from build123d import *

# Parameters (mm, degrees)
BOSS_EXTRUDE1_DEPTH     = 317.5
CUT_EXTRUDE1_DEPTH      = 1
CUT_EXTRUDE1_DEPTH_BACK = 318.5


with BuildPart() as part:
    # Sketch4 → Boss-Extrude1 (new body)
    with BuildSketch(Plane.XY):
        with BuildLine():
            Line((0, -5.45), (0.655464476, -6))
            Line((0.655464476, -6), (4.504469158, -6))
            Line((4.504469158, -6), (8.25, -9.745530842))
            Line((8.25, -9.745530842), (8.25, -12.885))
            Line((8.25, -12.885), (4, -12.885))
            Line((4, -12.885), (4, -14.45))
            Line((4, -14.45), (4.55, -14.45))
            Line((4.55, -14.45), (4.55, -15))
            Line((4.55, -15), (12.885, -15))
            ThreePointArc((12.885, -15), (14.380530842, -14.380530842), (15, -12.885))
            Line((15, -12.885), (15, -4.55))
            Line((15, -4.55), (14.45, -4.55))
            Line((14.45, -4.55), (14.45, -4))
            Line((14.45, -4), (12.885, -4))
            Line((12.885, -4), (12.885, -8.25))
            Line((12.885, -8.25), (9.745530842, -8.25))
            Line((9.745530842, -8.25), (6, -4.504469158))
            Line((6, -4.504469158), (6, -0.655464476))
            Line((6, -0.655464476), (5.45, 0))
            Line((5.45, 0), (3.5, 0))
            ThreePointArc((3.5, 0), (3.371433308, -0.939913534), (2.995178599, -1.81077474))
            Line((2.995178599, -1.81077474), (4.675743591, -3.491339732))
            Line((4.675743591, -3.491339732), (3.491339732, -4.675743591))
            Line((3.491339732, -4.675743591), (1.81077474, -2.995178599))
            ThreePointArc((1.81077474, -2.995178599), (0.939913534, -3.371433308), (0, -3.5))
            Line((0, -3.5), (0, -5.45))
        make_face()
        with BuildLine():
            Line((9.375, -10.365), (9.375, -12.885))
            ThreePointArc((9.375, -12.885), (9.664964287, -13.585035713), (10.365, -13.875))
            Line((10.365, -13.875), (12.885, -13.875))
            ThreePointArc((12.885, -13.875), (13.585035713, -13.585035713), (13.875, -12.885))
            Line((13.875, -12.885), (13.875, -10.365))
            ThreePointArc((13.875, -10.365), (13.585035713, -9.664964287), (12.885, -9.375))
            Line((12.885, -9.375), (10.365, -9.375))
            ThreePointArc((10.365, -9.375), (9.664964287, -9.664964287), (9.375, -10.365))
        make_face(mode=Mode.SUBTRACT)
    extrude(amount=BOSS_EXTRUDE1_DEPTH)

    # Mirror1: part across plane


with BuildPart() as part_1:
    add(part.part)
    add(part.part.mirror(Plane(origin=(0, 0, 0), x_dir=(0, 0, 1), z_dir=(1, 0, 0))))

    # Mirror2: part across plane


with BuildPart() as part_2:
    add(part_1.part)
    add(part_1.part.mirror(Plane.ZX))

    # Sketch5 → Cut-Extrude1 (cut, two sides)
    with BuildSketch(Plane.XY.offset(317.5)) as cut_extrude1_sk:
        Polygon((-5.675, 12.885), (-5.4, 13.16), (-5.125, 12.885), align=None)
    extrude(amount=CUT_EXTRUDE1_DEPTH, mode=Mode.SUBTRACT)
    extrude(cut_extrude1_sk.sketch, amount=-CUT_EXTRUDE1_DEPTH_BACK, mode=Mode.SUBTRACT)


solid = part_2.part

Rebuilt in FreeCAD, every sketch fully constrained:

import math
import FreeCAD as App
import Part
import Sketcher

V = App.Vector
Q = App.Units.Quantity


def add_polygon(sketch, points):
    """Adds a closed chain of lines whose ends are joined by coincident constraints."""
    first, n = sketch.GeometryCount, len(points)
    for a, b in zip(points, points[1:] + points[:1]):
        sketch.addGeometry(Part.LineSegment(App.Vector(*a, 0), App.Vector(*b, 0)), False)
    for i in range(n):
        sketch.addConstraint(Sketcher.Constraint("Coincident", first + i, 2, first + (i + 1) % n, 1))

doc = App.newDocument("Part")
body = doc.addObject("PartDesign::Body", "Body")

sketch1 = body.newObject("Sketcher::SketchObject", "Sketch")
sketch1.AttachmentSupport = (doc.getObject("XY_Plane"), [""])
sketch1.MapMode = "FlatFace"
sketch1.addGeometry([
    Part.LineSegment(V(0, -5.45, 0), V(0.655464, -6, 0)),
    Part.LineSegment(V(0.655464, -6, 0), V(4.504469, -6, 0)),
    Part.LineSegment(V(4.504469, -6, 0), V(8.25, -9.745531, 0)),
    Part.LineSegment(V(8.25, -9.745531, 0), V(8.25, -12.885, 0)),
    Part.LineSegment(V(8.25, -12.885, 0), V(4, -12.885, 0)),
    Part.LineSegment(V(4, -12.885, 0), V(4, -14.45, 0)),
    Part.LineSegment(V(4, -14.45, 0), V(4.55, -14.45, 0)),
    Part.LineSegment(V(4.55, -14.45, 0), V(4.55, -15, 0)),
    Part.LineSegment(V(4.55, -15, 0), V(12.885, -15, 0)),
    Part.ArcOfCircle(Part.Circle(V(12.885, -12.885, 0), V(0, 0, 1), 2.115), math.radians(-90), math.radians(0)),
    Part.LineSegment(V(15, -12.885, 0), V(15, -4.55, 0)),
    Part.LineSegment(V(15, -4.55, 0), V(14.45, -4.55, 0)),
    Part.LineSegment(V(14.45, -4.55, 0), V(14.45, -4, 0)),
    Part.LineSegment(V(14.45, -4, 0), V(12.885, -4, 0)),
    Part.LineSegment(V(12.885, -4, 0), V(12.885, -8.25, 0)),
    Part.LineSegment(V(12.885, -8.25, 0), V(9.745531, -8.25, 0)),
    Part.LineSegment(V(9.745531, -8.25, 0), V(6, -4.504469, 0)),
    Part.LineSegment(V(6, -4.504469, 0), V(6, -0.655464, 0)),
    Part.LineSegment(V(6, -0.655464, 0), V(5.45, 0, 0)),
    Part.LineSegment(V(5.45, 0, 0), V(3.5, 0, 0)),
    Part.ArcOfCircle(Part.Circle(V(0, 0, 0), V(0, 0, 1), 3.5), math.radians(-31.155614), math.radians(0)),
    Part.LineSegment(V(2.995179, -1.810775, 0), V(4.675744, -3.49134, 0)),
    Part.LineSegment(V(4.675744, -3.49134, 0), V(3.49134, -4.675744, 0)),
    Part.LineSegment(V(3.49134, -4.675744, 0), V(1.810775, -2.995179, 0)),
    Part.ArcOfCircle(Part.Circle(V(0, 0, 0), V(0, 0, 1), 3.5), math.radians(-90), math.radians(-58.844386)),
    Part.LineSegment(V(0, -3.5, 0), V(0, -5.45, 0)),
    Part.LineSegment(V(9.375, -12.885, 0), V(9.375, -10.365, 0)),
    Part.ArcOfCircle(Part.Circle(V(10.365, -10.365, 0), V(0, 0, 1), 0.99), math.radians(90), math.radians(180)),
    Part.LineSegment(V(10.365, -9.375, 0), V(12.885, -9.375, 0)),
    Part.ArcOfCircle(Part.Circle(V(12.885, -10.365, 0), V(0, 0, 1), 0.99), math.radians(0), math.radians(90)),
    Part.LineSegment(V(13.875, -10.365, 0), V(13.875, -12.885, 0)),
    Part.ArcOfCircle(Part.Circle(V(12.885, -12.885, 0), V(0, 0, 1), 0.99), math.radians(-90), math.radians(0)),
    Part.LineSegment(V(12.885, -13.875, 0), V(10.365, -13.875, 0)),
    Part.ArcOfCircle(Part.Circle(V(10.365, -12.885, 0), V(0, 0, 1), 0.99), math.radians(-180), math.radians(-90)),
], False)
sketch1.addConstraint([
    Sketcher.Constraint("Coincident", 0, 2, 1, 1),
    Sketcher.Constraint("Coincident", 1, 2, 2, 1),
    Sketcher.Constraint("Coincident", 2, 2, 3, 1),
    Sketcher.Constraint("Coincident", 3, 2, 4, 1),
    Sketcher.Constraint("Coincident", 4, 2, 5, 1),
    Sketcher.Constraint("Coincident", 5, 2, 6, 1),
    Sketcher.Constraint("Coincident", 6, 2, 7, 1),
    Sketcher.Constraint("Coincident", 7, 2, 8, 1),
    Sketcher.Constraint("Tangent", 8, 2, 9, 1),
    Sketcher.Constraint("Tangent", 9, 2, 10, 1),
    Sketcher.Constraint("Coincident", 10, 2, 11, 1),
    Sketcher.Constraint("Coincident", 11, 2, 12, 1),
    Sketcher.Constraint("Coincident", 12, 2, 13, 1),
    Sketcher.Constraint("Coincident", 13, 2, 14, 1),
    Sketcher.Constraint("Coincident", 14, 2, 15, 1),
    Sketcher.Constraint("Coincident", 15, 2, 16, 1),
    Sketcher.Constraint("Coincident", 16, 2, 17, 1),
    Sketcher.Constraint("Coincident", 17, 2, 18, 1),
    Sketcher.Constraint("Coincident", 18, 2, 19, 1),
    Sketcher.Constraint("Coincident", 19, 2, 20, 2),
    Sketcher.Constraint("Coincident", 20, 1, 21, 1),
    Sketcher.Constraint("Coincident", 21, 2, 22, 1),
    Sketcher.Constraint("Coincident", 22, 2, 23, 1),
    Sketcher.Constraint("Coincident", 23, 2, 24, 2),
    Sketcher.Constraint("Coincident", 24, 1, 25, 1),
    Sketcher.Constraint("Coincident", 25, 2, 0, 1),
    Sketcher.Constraint("Tangent", 26, 2, 27, 2),
    Sketcher.Constraint("Tangent", 27, 1, 28, 1),
    Sketcher.Constraint("Tangent", 28, 2, 29, 2),
    Sketcher.Constraint("Tangent", 29, 1, 30, 1),
    Sketcher.Constraint("Tangent", 30, 2, 31, 2),
    Sketcher.Constraint("Tangent", 31, 1, 32, 1),
    Sketcher.Constraint("Tangent", 32, 2, 33, 2),
    Sketcher.Constraint("Tangent", 33, 1, 26, 1),
    Sketcher.Constraint("Horizontal", 1),
    Sketcher.Constraint("Vertical", 3),
    Sketcher.Constraint("Horizontal", 4),
    Sketcher.Constraint("Vertical", 5),
    Sketcher.Constraint("Horizontal", 6),
    Sketcher.Constraint("Vertical", 7),
    Sketcher.Constraint("Horizontal", 8),
    Sketcher.Constraint("Vertical", 10),
    Sketcher.Constraint("Horizontal", 11),
    Sketcher.Constraint("Vertical", 12),
    Sketcher.Constraint("Horizontal", 13),
    Sketcher.Constraint("Vertical", 14),
    Sketcher.Constraint("Horizontal", 15),
    Sketcher.Constraint("Vertical", 17),
    Sketcher.Constraint("Horizontal", 19),
    Sketcher.Constraint("Vertical", 25),
    Sketcher.Constraint("Vertical", 26),
    Sketcher.Constraint("Horizontal", 28),
    Sketcher.Constraint("Vertical", 30),
    Sketcher.Constraint("Horizontal", 32),
    Sketcher.Constraint("Coincident", 20, 3, -1, 1),
    Sketcher.Constraint("Coincident", 24, 3, -1, 1),
    Sketcher.Constraint("Coincident", 31, 3, 9, 3),
    Sketcher.Constraint("Equal", 20, 24),
    Sketcher.Constraint("Equal", 27, 29),
    Sketcher.Constraint("Equal", 29, 31),
    Sketcher.Constraint("Equal", 31, 33),
    Sketcher.Constraint("PointOnObject", 18, 2, -1),
    Sketcher.Constraint("PointOnObject", 24, 1, -2),
    Sketcher.Constraint("Parallel", 2, 16),
    Sketcher.Constraint("Parallel", 16, 21),
    Sketcher.Constraint("Perpendicular", 21, 22),
    Sketcher.Constraint("Perpendicular", 22, 23),
    Sketcher.Constraint("Horizontal", 33, 3, 3, 2),
    Sketcher.Constraint("Vertical", 8, 2, 13, 2),
    Sketcher.Constraint("Equal", 6, 11),
    Sketcher.Constraint("Equal", 15, 3),
    Sketcher.Constraint("Equal", 13, 5),
    Sketcher.Constraint("Equal", 8, 10),
    Sketcher.Constraint("Equal", 7, 12),
    Sketcher.Constraint("Equal", 4, 14),
    Sketcher.Constraint("Equal", 1, 17),
    Sketcher.Constraint("Equal", 19, 25),
    Sketcher.Constraint("Equal", 32, 26),
    Sketcher.Constraint("Equal", 2, 16),
    Sketcher.Constraint("Equal", 0, 18),
    Sketcher.Constraint("Equal", 21, 23),
    Sketcher.Constraint("Radius", 20, Q("3.5 mm")),
    Sketcher.Constraint("Angle", 0, Q("-40 deg")),
    Sketcher.Constraint("Angle", 2, Q("-45 deg")),
    Sketcher.Constraint("Radius", 27, Q("0.99 mm")),
    Sketcher.Constraint("DistanceY", 0, 2, -1, 1, Q("6 mm")),
    Sketcher.Constraint("DistanceX", -1, 1, 4, 2, Q("4 mm")),
    Sketcher.Constraint("DistanceY", 7, 2, -1, 1, Q("15 mm")),
    Sketcher.Constraint("Radius", 9, Q("2.115 mm")),
    Sketcher.Constraint("DistanceX", 4, 2, 4, 1, Q("4.25 mm")),
    Sketcher.Constraint("DistanceX", 6, 1, 6, 2, Q("0.55 mm")),
    Sketcher.Constraint("DistanceX", 19, 2, 19, 1, Q("1.95 mm")),
    Sketcher.Constraint("DistanceX", 28, 1, 28, 2, Q("2.52 mm")),
    Sketcher.Constraint("Distance", 22, Q("1.675 mm")),
    Sketcher.Constraint("DistanceX", 15, 2, 15, 1, Q("3.139469 mm")),
    Sketcher.Constraint("DistanceY", 21, 2, -1, 1, Q("3.49134 mm")),
])
pad1 = body.newObject("PartDesign::Pad", "Pad")
pad1.Profile = sketch1
pad1.Length = 317.5
body2 = doc.addObject("PartDesign::Body", "Body001")
doc.recompute()

body2.BaseFeature = body
doc.recompute()

mirroring = doc.addObject("Part::Mirroring", "Mirroring")
mirroring.Source = body
mirroring.Base = V(0, 0, 0)
mirroring.Normal = V(1, 0, 0)
body3 = doc.addObject("PartDesign::Body", "Body002")
body3.BaseFeature = mirroring
boolean = body2.newObject("PartDesign::Boolean", "Boolean")
boolean.Type = "Fuse"
boolean.addObjects([body3])
doc.recompute()
body4 = doc.addObject("PartDesign::Body", "Body003")
doc.recompute()

body4.BaseFeature = body2
doc.recompute()

mirroring2 = doc.addObject("Part::Mirroring", "Mirroring001")
mirroring2.Source = body2
mirroring2.Base = V(0, 0, 0)
mirroring2.Normal = V(0, 1, 0)
body5 = doc.addObject("PartDesign::Body", "Body004")
body5.BaseFeature = mirroring2
boolean2 = body4.newObject("PartDesign::Boolean", "Boolean001")
boolean2.Type = "Fuse"
boolean2.addObjects([body5])
doc.recompute()

sketch2 = body4.newObject("Sketcher::SketchObject", "Sketch001")
sketch2.AttachmentSupport = (doc.getObject("XY_Plane003"), [""])
sketch2.MapMode = "FlatFace"
sketch2.AttachmentOffset = App.Placement(V(0, 0, 317.5), App.Rotation())
add_polygon(sketch2, [(-5.4, 13.16), (-5.675, 12.885), (-5.125, 12.885)])
sketch2.addConstraint([
    Sketcher.Constraint("Horizontal", 1),
    Sketcher.Constraint("Perpendicular", 0, 2),
    Sketcher.Constraint("Equal", 0, 2),
    Sketcher.Constraint("DistanceX", 1, 1, 1, 2, Q("0.55 mm")),
    Sketcher.Constraint("DistanceX", 2, 2, -1, 1, Q("5.4 mm")),
    Sketcher.Constraint("DistanceY", -1, 1, 2, 2, Q("13.16 mm")),
])
pocket1 = body4.newObject("PartDesign::Pocket", "Pocket")
pocket1.Profile = sketch2
pocket1.Type = "ThroughAll"
pocket1.Midplane = True
mirroring.Visibility = False
mirroring2.Visibility = False

doc.recompute()
